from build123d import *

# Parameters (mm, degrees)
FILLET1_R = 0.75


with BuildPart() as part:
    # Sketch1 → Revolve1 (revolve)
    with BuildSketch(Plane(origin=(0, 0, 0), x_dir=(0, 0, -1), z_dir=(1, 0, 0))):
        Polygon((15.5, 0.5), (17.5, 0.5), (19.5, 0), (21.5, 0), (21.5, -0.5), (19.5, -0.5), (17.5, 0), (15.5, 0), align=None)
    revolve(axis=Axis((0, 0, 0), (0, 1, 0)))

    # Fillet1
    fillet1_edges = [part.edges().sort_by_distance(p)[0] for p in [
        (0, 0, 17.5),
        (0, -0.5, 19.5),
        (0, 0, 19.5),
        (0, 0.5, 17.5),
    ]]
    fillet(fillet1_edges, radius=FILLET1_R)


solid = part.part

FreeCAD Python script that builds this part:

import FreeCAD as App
import Part
import Sketcher

V = App.Vector


def edges_at(feature, points):
    """Names of the edges that pass closest to the given points."""
    edges = feature.Shape.Edges
    near = lambda p: min(range(len(edges)), key=lambda i: edges[i].distToShape(Part.Vertex(*p))[0])
    return sorted({f"Edge{near(p) + 1}" for p in points})


def add_polygon(sketch, points):
    """Adds a closed chain of lines whose ends are joined by coincident constraints."""
    first, n = sketch.GeometryCount, len(points)
    for a, b in zip(points, points[1:] + points[:1]):
        sketch.addGeometry(Part.LineSegment(App.Vector(*a, 0), App.Vector(*b, 0)), False)
    for i in range(n):
        sketch.addConstraint(Sketcher.Constraint("Coincident", first + i, 2, first + (i + 1) % n, 1))

doc = App.newDocument("Part")
body = doc.addObject("PartDesign::Body", "Body")

sketch1 = body.newObject("Sketcher::SketchObject", "Sketch")
sketch1.AttachmentSupport = (doc.getObject("YZ_Plane"), [""])
sketch1.MapMode = "FlatFace"
add_polygon(sketch1, [(0.5, -17.5), (0.5, -15.5), (0, -15.5), (0, -17.5), (-0.5, -19.5), (-0.5, -21.5), (0, -21.5), (0, -19.5)])
sketch1.addConstraint([
    Sketcher.Constraint("Vertical", 0),
    Sketcher.Constraint("Horizontal", 1),
    Sketcher.Constraint("Vertical", 2),
    Sketcher.Constraint("Vertical", 4),
    Sketcher.Constraint("Horizontal", 5),
    Sketcher.Constraint("Vertical", 6),
    Sketcher.Constraint("PointOnObject", 1, 2, -2),
    Sketcher.Constraint("PointOnObject", 5, 2, -2),
    Sketcher.Constraint("Parallel", 3, 7),
    Sketcher.Constraint("Horizontal", 3, 2, 6, 2),
    Sketcher.Constraint("Horizontal", 2, 2, 7, 2),
    Sketcher.Constraint("Equal", 2, 4),
    Sketcher.Constraint("DistanceY", 0, 1, 0, 2, 2.0),
    Sketcher.Constraint("DistanceX", 1, 2, 1, 1, 0.5),
    Sketcher.Constraint("DistanceY", 3, 2, 2, 2, 2.0),
    Sketcher.Constraint("DistanceY", 0, 2, -1, 1, 15.5),
])
revolution = body.newObject("PartDesign::Revolution", "Revolution")
revolution.Profile = sketch1
revolution.ReferenceAxis = (sketch1, ["H_Axis"])
revolution.Angle = 360
doc.recompute()

fillet = body.newObject("PartDesign::Fillet", "Fillet")
fillet.Base = (revolution, edges_at(revolution, [
    (0, 0, 17.5),
    (0, -0.5, 19.5),
    (0, 0, 19.5),
    (0, 0.5, 17.5),
]))
fillet.Radius = 0.75

doc.recompute()
